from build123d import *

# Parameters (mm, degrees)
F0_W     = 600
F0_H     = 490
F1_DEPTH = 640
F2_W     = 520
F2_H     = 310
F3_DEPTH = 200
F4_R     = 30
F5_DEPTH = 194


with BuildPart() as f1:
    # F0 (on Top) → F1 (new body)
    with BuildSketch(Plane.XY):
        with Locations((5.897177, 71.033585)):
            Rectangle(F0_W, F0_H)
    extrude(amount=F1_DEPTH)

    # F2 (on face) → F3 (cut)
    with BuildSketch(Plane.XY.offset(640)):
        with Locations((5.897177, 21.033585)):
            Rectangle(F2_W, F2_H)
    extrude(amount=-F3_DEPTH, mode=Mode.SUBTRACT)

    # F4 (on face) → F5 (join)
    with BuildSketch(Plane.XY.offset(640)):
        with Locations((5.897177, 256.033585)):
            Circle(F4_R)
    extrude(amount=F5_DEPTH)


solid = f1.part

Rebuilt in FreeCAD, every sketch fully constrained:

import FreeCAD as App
import Part
import Sketcher
from FreeCAD import Vector

doc = App.newDocument("Part")
body = doc.addObject("PartDesign::Body", "Body")

# Sketch on XY plane
sketch1 = body.newObject("Sketcher::SketchObject", "Sketch")
sketch1.AttachmentSupport = (doc.getObject("XY_Plane"), [""])
sketch1.MapMode = "FlatFace"
sketch1.addGeometry([
    Part.LineSegment(Vector(-294, 316, 0), Vector(-294, -174, 0)),
    Part.LineSegment(Vector(-294, -174, 0), Vector(306, -174, 0)),
    Part.LineSegment(Vector(306, -174, 0), Vector(306, 316, 0)),
    Part.LineSegment(Vector(306, 316, 0), Vector(-294, 316, 0)),
], False)
sketch1.addConstraint([
    Sketcher.Constraint("Coincident", 0, 2, 1, 1),
    Sketcher.Constraint("Coincident", 1, 2, 2, 1),
    Sketcher.Constraint("Coincident", 2, 2, 3, 1),
    Sketcher.Constraint("Coincident", 3, 2, 0, 1),
    Sketcher.Constraint("Vertical", 0),
    Sketcher.Constraint("Horizontal", 1),
    Sketcher.Constraint("Vertical", 2),
    Sketcher.Constraint("Horizontal", 3),
    Sketcher.Constraint("DistanceX", 1, 1, 1, 2, 600.0),
    Sketcher.Constraint("DistanceY", 0, 2, 0, 1, 490.0),
    Sketcher.Constraint("DistanceX", 0, 2, -1, 1, 294.102823),
    Sketcher.Constraint("DistanceY", 0, 2, -1, 1, 173.966415),
])
pad1 = body.newObject("PartDesign::Pad", "Pad")
pad1.Profile = sketch1
pad1.Length = 640

# Sketch on XY plane
sketch2 = body.newObject("Sketcher::SketchObject", "Sketch001")
sketch2.AttachmentSupport = (doc.getObject("XY_Plane"), [""])
sketch2.MapMode = "FlatFace"
sketch2.AttachmentOffset = App.Placement(Vector(0, 0, 640), App.Rotation())
sketch2.addGeometry([
    Part.LineSegment(Vector(-254, 176, 0), Vector(-254, -134, 0)),
    Part.LineSegment(Vector(-254, -134, 0), Vector(266, -134, 0)),
    Part.LineSegment(Vector(266, -134, 0), Vector(266, 176, 0)),
    Part.LineSegment(Vector(266, 176, 0), Vector(-254, 176, 0)),
], False)
sketch2.addConstraint([
    Sketcher.Constraint("Coincident", 0, 2, 1, 1),
    Sketcher.Constraint("Coincident", 1, 2, 2, 1),
    Sketcher.Constraint("Coincident", 2, 2, 3, 1),
    Sketcher.Constraint("Coincident", 3, 2, 0, 1),
    Sketcher.Constraint("Vertical", 0),
    Sketcher.Constraint("Horizontal", 1),
    Sketcher.Constraint("Vertical", 2),
    Sketcher.Constraint("Horizontal", 3),
    Sketcher.Constraint("DistanceX", 1, 1, 1, 2, 520.0),
    Sketcher.Constraint("DistanceY", 0, 2, 0, 1, 310.0),
    Sketcher.Constraint("DistanceX", 0, 2, -1, 1, 254.102823),
    Sketcher.Constraint("DistanceY", 0, 2, -1, 1, 133.966415),
])
pocket1 = body.newObject("PartDesign::Pocket", "Pocket")
pocket1.Profile = sketch2
pocket1.Length = 200

# Sketch on XY plane
sketch3 = body.newObject("Sketcher::SketchObject", "Sketch002")
sketch3.AttachmentSupport = (doc.getObject("XY_Plane"), [""])
sketch3.MapMode = "FlatFace"
sketch3.AttachmentOffset = App.Placement(Vector(0, 0, 640), App.Rotation())
sketch3.addGeometry(Part.Circle(Vector(6, 256, 0), Vector(0, 0, 1), 30), False)
sketch3.addConstraint([
    Sketcher.Constraint("Diameter", 0, 60.0),
    Sketcher.Constraint("DistanceX", -1, 1, 0, 3, 5.897177),
    Sketcher.Constraint("DistanceY", -1, 1, 0, 3, 256.033585),
])
pad2 = body.newObject("PartDesign::Pad", "Pad001")
pad2.Profile = sketch3
pad2.Length = 194

doc.recompute()
